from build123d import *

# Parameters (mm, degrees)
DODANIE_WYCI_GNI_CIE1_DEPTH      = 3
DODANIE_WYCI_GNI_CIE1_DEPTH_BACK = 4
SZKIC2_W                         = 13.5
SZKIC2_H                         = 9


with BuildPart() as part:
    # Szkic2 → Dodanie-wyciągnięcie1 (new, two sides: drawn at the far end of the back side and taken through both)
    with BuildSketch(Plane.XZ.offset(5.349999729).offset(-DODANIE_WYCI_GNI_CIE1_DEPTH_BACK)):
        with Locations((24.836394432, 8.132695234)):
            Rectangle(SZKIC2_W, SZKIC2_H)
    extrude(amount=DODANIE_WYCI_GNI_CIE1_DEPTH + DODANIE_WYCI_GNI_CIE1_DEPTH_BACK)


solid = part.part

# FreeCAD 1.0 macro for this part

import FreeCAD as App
import Part
import Sketcher

V = App.Vector

doc = App.newDocument("Part")
body = doc.addObject("PartDesign::Body", "Body")

sketch1 = doc.addObject("Sketcher::SketchObject", "Sketch")
body.addObject(sketch1)
sketch1.AttachmentSupport = (doc.XZ_Plane, [""])
sketch1.MapMode = "FlatFace"
sketch1.AttachmentOffset = App.Placement(V(0, 0, 5.35), App.Rotation())
sketch1.addGeometry([
    Part.LineSegment(V(18.086394, 12.632695, 0), V(18.086394, 3.632695, 0)),
    Part.LineSegment(V(18.086394, 3.632695, 0), V(31.586394, 3.632695, 0)),
    Part.LineSegment(V(31.586394, 3.632695, 0), V(31.586394, 12.632695, 0)),
    Part.LineSegment(V(31.586394, 12.632695, 0), V(18.086394, 12.632695, 0)),
], False)
sketch1.addConstraint([
    Sketcher.Constraint("Coincident", 0, 2, 1, 1),
    Sketcher.Constraint("Coincident", 1, 2, 2, 1),
    Sketcher.Constraint("Coincident", 2, 2, 3, 1),
    Sketcher.Constraint("Coincident", 3, 2, 0, 1),
    Sketcher.Constraint("Vertical", 0),
    Sketcher.Constraint("Horizontal", 1),
    Sketcher.Constraint("Vertical", 2),
    Sketcher.Constraint("Horizontal", 3),
    Sketcher.Constraint("DistanceY", 0, 2, 0, 1, 9.0),
    Sketcher.Constraint("DistanceX", 1, 1, 1, 2, 13.5),
    Sketcher.Constraint("DistanceX", -1, 1, 0, 2, 18.086394),
    Sketcher.Constraint("DistanceY", -1, 1, 0, 2, 3.632695),
])
pad1 = doc.addObject("PartDesign::Pad", "Pad")
body.addObject(pad1)
pad1.Profile = sketch1
pad1.Type = "TwoLengths"
pad1.Length = 3
pad1.Length2 = 4

doc.recompute()
